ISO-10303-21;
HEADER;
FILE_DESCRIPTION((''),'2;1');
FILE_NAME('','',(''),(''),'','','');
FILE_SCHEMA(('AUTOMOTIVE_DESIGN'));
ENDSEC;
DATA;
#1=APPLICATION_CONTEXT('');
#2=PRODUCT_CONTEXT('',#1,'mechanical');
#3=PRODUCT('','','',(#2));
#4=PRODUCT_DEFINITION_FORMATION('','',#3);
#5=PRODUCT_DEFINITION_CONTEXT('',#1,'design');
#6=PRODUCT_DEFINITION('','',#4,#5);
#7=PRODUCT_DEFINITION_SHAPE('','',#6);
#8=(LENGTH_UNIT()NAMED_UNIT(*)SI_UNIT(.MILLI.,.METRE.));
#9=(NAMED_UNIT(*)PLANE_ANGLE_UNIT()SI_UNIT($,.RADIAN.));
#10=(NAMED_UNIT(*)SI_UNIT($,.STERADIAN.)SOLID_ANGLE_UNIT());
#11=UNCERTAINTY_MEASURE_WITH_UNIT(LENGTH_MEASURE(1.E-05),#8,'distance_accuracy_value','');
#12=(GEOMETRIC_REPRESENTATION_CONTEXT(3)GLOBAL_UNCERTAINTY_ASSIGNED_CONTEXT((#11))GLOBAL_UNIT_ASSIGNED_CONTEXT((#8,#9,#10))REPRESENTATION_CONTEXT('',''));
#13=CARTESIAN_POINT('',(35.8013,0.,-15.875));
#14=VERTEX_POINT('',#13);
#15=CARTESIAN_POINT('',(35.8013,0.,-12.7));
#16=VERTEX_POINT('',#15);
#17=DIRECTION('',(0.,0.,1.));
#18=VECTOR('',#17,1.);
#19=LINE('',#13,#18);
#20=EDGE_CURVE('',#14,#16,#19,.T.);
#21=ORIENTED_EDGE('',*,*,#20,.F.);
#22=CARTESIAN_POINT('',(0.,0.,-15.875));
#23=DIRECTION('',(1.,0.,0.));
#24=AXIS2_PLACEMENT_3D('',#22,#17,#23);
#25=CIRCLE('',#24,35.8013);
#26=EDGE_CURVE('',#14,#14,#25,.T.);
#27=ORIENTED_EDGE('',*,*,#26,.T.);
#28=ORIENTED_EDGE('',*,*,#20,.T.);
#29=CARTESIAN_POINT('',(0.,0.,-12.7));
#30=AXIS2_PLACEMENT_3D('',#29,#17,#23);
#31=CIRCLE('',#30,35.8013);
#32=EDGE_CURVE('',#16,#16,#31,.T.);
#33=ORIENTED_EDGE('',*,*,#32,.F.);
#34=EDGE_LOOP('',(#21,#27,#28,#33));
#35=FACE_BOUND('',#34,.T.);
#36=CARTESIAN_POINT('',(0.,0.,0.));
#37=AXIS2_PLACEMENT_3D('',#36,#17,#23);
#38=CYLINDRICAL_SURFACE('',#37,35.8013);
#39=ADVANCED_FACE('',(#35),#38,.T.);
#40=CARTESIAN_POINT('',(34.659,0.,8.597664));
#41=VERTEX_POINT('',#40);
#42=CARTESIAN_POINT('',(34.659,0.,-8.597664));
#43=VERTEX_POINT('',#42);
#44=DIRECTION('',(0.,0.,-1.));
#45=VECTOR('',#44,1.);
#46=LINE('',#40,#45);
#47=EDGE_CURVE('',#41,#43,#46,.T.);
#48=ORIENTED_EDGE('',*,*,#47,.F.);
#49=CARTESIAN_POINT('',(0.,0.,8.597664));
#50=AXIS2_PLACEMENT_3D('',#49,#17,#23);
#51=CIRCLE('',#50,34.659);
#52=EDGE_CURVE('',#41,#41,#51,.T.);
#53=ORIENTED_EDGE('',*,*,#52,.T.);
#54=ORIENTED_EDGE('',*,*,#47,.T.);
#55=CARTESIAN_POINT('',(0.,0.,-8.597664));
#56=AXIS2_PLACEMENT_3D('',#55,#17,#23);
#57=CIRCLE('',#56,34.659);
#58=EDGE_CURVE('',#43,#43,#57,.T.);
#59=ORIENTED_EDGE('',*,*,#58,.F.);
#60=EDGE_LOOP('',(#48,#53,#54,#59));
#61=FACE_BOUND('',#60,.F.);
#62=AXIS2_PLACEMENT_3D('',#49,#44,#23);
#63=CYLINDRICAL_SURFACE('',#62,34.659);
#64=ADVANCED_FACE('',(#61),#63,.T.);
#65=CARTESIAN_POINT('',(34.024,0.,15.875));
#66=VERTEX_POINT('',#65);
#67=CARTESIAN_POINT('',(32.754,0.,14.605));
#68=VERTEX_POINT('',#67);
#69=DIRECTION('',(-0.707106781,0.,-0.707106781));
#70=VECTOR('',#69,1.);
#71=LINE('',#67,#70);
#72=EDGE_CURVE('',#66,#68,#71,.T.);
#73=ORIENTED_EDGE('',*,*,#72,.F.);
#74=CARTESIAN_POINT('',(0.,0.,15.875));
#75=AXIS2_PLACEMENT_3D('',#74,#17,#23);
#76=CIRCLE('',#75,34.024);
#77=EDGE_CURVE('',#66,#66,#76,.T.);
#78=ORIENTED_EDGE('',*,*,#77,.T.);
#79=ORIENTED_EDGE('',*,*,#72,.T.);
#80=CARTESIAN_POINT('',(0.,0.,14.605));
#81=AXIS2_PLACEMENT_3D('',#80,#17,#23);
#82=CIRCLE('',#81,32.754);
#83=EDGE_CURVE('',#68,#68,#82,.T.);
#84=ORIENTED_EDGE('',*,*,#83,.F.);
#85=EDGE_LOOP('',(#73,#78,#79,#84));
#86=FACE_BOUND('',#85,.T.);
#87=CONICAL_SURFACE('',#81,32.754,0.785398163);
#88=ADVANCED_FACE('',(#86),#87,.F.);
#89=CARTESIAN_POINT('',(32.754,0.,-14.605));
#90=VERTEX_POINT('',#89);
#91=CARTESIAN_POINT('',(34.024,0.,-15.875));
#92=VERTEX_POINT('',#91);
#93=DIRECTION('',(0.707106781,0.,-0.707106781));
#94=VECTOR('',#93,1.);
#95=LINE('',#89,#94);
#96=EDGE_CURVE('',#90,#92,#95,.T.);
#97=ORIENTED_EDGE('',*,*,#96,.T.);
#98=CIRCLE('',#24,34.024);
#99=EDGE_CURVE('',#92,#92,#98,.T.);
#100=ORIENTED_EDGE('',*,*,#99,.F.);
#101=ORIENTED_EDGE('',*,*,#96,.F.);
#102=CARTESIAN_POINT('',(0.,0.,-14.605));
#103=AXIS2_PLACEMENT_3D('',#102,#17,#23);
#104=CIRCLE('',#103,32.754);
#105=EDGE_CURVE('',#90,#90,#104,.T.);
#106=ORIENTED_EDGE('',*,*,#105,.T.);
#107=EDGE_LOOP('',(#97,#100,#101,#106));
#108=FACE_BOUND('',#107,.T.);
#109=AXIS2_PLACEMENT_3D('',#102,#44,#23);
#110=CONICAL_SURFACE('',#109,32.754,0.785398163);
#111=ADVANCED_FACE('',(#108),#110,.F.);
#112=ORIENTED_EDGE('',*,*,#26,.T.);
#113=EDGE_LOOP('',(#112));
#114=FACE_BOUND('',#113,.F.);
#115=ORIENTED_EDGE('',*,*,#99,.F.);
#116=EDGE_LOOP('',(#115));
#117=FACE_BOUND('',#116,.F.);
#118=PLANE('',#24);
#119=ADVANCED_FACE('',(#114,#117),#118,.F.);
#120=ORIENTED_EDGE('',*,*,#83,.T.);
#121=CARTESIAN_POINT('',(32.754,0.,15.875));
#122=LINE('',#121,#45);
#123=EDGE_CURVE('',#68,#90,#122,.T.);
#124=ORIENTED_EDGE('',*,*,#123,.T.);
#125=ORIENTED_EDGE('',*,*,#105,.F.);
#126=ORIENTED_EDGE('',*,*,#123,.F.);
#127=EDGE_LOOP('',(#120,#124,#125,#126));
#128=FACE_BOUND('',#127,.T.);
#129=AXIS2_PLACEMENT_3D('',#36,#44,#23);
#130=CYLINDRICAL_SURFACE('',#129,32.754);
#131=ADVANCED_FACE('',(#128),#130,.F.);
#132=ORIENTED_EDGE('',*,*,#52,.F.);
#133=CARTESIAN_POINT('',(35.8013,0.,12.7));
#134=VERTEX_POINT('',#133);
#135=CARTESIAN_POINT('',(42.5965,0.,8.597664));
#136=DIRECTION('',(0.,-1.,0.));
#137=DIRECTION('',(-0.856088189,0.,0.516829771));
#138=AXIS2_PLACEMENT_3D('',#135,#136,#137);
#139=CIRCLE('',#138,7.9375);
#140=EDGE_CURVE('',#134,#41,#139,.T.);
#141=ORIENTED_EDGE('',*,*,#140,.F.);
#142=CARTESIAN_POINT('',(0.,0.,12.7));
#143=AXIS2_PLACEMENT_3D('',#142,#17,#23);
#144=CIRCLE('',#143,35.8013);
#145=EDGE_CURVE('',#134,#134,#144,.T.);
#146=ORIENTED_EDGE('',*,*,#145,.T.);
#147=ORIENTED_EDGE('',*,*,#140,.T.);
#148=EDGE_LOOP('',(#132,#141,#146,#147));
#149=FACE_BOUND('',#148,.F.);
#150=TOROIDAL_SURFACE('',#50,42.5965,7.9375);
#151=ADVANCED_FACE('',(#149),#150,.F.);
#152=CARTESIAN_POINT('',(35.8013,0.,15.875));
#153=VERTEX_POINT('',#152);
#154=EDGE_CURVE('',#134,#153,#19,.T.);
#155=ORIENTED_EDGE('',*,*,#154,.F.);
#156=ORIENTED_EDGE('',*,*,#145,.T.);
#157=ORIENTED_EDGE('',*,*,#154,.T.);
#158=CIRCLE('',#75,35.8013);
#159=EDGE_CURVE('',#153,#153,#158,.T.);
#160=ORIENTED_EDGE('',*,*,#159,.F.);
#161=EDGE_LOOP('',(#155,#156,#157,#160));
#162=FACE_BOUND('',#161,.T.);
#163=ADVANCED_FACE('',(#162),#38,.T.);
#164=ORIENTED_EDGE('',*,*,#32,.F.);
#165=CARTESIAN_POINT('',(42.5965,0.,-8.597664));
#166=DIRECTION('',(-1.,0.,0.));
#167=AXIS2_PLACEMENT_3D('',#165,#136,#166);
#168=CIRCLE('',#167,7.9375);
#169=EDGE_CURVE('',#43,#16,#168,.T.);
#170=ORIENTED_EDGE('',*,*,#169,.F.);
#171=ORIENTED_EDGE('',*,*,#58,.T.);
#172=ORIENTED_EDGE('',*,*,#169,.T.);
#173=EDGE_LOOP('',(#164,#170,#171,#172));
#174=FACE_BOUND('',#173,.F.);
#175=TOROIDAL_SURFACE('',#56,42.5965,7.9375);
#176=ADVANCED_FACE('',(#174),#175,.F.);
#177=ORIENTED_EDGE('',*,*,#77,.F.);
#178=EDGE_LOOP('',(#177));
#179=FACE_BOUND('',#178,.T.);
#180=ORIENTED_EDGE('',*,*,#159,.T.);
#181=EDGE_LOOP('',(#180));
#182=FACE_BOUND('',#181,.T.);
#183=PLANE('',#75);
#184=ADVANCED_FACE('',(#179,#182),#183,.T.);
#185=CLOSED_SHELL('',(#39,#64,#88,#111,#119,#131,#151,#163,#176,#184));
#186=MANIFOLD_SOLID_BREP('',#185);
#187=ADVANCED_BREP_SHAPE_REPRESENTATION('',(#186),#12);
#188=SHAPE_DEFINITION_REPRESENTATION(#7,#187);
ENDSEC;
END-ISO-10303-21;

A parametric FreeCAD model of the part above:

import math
import FreeCAD as App
import Part
import Sketcher

V = App.Vector
Q = App.Units.Quantity


def edges_at(feature, points):
    """Names of the edges that pass closest to the given points."""
    edges = feature.Shape.Edges
    near = lambda p: min(range(len(edges)), key=lambda i: edges[i].distToShape(Part.Vertex(*p))[0])
    return sorted({f"Edge{near(p) + 1}" for p in points})

doc = App.newDocument("Part")
body = doc.addObject("PartDesign::Body", "Body")

# Sketch on XY plane
sketch1 = doc.addObject("Sketcher::SketchObject", "Sketch")
body.addObject(sketch1)
sketch1.AttachmentSupport = (doc.XY_Plane, [""])
sketch1.MapMode = "FlatFace"
sketch1.addGeometry([
    Part.Circle(V(0, 0, 0), V(0, 0, 1), 36),
    Part.Circle(V(0, 0, 0), V(0, 0, 1), 33),
], False)
sketch1.addConstraint([
    Sketcher.Constraint("Coincident", 0, 3, -1, 1),
    Sketcher.Constraint("Coincident", 1, 3, -1, 1),
    Sketcher.Constraint("Diameter", 0, Q("2.819 in")),
    Sketcher.Constraint("Diameter", 1, 65.508),
])
pad1 = doc.addObject("PartDesign::Pad", "Pad")
body.addObject(pad1)
pad1.Profile = sketch1
pad1.Length = Q("1.25 in")
pad1.Midplane = True
doc.recompute()

chamfer = doc.addObject("PartDesign::Chamfer", "Chamfer")
body.addObject(chamfer)
chamfer.Base = (pad1, edges_at(pad1, [(-32.754, 0, -15.875), (-32.754, 0, 15.875)]))
chamfer.Size = Q("0.05 in")

# Sketch on XZ plane
sketch2 = doc.addObject("Sketcher::SketchObject", "Sketch001")
body.addObject(sketch2)
sketch2.AttachmentSupport = (doc.XZ_Plane, [""])
sketch2.MapMode = "FlatFace"
sketch2.addGeometry([
    Part.LineSegment(V(34.7, -8.6, 0), V(34.7, 8.6, 0)),
    Part.ArcOfCircle(Part.Circle(V(42.6, 8.6, 0), V(0, 0, 1), 7.9), math.radians(149), math.radians(180)),
    Part.LineSegment(V(35.8, 12.7, 0), V(35.8, -12.7, 0)),
    Part.ArcOfCircle(Part.Circle(V(42.6, -8.6, 0), V(0, 0, 1), 7.9), math.radians(-180), math.radians(-149)),
], False)
sketch2.addConstraint([
    Sketcher.Constraint("Tangent", 0, 2, 1, 2),
    Sketcher.Constraint("Coincident", 1, 1, 2, 1),
    Sketcher.Constraint("Coincident", 2, 2, 3, 2),
    Sketcher.Constraint("Tangent", 3, 1, 0, 1),
    Sketcher.Constraint("Vertical", 0),
    Sketcher.Constraint("Vertical", 2),
    Sketcher.Constraint("Equal", 1, 3),
    Sketcher.Constraint("DistanceY", 2, 2, 2, 1, Q("1 in")),
    Sketcher.Constraint("Radius", 1, Q("0.3125 in")),
    Sketcher.Constraint("DistanceY", -1, 1, 1, 1, Q("0.5 in")),
    Sketcher.Constraint("DistanceX", -1, 1, 1, 1, Q("1.4095 in")),
    Sketcher.Constraint("DistanceX", -1, 1, 1, 3, 42.5965),
])
groove = doc.addObject("PartDesign::Groove", "Groove")
body.addObject(groove)
groove.Profile = sketch2
groove.ReferenceAxis = (sketch2, ["V_Axis"])
groove.Angle = 360

doc.recompute()
